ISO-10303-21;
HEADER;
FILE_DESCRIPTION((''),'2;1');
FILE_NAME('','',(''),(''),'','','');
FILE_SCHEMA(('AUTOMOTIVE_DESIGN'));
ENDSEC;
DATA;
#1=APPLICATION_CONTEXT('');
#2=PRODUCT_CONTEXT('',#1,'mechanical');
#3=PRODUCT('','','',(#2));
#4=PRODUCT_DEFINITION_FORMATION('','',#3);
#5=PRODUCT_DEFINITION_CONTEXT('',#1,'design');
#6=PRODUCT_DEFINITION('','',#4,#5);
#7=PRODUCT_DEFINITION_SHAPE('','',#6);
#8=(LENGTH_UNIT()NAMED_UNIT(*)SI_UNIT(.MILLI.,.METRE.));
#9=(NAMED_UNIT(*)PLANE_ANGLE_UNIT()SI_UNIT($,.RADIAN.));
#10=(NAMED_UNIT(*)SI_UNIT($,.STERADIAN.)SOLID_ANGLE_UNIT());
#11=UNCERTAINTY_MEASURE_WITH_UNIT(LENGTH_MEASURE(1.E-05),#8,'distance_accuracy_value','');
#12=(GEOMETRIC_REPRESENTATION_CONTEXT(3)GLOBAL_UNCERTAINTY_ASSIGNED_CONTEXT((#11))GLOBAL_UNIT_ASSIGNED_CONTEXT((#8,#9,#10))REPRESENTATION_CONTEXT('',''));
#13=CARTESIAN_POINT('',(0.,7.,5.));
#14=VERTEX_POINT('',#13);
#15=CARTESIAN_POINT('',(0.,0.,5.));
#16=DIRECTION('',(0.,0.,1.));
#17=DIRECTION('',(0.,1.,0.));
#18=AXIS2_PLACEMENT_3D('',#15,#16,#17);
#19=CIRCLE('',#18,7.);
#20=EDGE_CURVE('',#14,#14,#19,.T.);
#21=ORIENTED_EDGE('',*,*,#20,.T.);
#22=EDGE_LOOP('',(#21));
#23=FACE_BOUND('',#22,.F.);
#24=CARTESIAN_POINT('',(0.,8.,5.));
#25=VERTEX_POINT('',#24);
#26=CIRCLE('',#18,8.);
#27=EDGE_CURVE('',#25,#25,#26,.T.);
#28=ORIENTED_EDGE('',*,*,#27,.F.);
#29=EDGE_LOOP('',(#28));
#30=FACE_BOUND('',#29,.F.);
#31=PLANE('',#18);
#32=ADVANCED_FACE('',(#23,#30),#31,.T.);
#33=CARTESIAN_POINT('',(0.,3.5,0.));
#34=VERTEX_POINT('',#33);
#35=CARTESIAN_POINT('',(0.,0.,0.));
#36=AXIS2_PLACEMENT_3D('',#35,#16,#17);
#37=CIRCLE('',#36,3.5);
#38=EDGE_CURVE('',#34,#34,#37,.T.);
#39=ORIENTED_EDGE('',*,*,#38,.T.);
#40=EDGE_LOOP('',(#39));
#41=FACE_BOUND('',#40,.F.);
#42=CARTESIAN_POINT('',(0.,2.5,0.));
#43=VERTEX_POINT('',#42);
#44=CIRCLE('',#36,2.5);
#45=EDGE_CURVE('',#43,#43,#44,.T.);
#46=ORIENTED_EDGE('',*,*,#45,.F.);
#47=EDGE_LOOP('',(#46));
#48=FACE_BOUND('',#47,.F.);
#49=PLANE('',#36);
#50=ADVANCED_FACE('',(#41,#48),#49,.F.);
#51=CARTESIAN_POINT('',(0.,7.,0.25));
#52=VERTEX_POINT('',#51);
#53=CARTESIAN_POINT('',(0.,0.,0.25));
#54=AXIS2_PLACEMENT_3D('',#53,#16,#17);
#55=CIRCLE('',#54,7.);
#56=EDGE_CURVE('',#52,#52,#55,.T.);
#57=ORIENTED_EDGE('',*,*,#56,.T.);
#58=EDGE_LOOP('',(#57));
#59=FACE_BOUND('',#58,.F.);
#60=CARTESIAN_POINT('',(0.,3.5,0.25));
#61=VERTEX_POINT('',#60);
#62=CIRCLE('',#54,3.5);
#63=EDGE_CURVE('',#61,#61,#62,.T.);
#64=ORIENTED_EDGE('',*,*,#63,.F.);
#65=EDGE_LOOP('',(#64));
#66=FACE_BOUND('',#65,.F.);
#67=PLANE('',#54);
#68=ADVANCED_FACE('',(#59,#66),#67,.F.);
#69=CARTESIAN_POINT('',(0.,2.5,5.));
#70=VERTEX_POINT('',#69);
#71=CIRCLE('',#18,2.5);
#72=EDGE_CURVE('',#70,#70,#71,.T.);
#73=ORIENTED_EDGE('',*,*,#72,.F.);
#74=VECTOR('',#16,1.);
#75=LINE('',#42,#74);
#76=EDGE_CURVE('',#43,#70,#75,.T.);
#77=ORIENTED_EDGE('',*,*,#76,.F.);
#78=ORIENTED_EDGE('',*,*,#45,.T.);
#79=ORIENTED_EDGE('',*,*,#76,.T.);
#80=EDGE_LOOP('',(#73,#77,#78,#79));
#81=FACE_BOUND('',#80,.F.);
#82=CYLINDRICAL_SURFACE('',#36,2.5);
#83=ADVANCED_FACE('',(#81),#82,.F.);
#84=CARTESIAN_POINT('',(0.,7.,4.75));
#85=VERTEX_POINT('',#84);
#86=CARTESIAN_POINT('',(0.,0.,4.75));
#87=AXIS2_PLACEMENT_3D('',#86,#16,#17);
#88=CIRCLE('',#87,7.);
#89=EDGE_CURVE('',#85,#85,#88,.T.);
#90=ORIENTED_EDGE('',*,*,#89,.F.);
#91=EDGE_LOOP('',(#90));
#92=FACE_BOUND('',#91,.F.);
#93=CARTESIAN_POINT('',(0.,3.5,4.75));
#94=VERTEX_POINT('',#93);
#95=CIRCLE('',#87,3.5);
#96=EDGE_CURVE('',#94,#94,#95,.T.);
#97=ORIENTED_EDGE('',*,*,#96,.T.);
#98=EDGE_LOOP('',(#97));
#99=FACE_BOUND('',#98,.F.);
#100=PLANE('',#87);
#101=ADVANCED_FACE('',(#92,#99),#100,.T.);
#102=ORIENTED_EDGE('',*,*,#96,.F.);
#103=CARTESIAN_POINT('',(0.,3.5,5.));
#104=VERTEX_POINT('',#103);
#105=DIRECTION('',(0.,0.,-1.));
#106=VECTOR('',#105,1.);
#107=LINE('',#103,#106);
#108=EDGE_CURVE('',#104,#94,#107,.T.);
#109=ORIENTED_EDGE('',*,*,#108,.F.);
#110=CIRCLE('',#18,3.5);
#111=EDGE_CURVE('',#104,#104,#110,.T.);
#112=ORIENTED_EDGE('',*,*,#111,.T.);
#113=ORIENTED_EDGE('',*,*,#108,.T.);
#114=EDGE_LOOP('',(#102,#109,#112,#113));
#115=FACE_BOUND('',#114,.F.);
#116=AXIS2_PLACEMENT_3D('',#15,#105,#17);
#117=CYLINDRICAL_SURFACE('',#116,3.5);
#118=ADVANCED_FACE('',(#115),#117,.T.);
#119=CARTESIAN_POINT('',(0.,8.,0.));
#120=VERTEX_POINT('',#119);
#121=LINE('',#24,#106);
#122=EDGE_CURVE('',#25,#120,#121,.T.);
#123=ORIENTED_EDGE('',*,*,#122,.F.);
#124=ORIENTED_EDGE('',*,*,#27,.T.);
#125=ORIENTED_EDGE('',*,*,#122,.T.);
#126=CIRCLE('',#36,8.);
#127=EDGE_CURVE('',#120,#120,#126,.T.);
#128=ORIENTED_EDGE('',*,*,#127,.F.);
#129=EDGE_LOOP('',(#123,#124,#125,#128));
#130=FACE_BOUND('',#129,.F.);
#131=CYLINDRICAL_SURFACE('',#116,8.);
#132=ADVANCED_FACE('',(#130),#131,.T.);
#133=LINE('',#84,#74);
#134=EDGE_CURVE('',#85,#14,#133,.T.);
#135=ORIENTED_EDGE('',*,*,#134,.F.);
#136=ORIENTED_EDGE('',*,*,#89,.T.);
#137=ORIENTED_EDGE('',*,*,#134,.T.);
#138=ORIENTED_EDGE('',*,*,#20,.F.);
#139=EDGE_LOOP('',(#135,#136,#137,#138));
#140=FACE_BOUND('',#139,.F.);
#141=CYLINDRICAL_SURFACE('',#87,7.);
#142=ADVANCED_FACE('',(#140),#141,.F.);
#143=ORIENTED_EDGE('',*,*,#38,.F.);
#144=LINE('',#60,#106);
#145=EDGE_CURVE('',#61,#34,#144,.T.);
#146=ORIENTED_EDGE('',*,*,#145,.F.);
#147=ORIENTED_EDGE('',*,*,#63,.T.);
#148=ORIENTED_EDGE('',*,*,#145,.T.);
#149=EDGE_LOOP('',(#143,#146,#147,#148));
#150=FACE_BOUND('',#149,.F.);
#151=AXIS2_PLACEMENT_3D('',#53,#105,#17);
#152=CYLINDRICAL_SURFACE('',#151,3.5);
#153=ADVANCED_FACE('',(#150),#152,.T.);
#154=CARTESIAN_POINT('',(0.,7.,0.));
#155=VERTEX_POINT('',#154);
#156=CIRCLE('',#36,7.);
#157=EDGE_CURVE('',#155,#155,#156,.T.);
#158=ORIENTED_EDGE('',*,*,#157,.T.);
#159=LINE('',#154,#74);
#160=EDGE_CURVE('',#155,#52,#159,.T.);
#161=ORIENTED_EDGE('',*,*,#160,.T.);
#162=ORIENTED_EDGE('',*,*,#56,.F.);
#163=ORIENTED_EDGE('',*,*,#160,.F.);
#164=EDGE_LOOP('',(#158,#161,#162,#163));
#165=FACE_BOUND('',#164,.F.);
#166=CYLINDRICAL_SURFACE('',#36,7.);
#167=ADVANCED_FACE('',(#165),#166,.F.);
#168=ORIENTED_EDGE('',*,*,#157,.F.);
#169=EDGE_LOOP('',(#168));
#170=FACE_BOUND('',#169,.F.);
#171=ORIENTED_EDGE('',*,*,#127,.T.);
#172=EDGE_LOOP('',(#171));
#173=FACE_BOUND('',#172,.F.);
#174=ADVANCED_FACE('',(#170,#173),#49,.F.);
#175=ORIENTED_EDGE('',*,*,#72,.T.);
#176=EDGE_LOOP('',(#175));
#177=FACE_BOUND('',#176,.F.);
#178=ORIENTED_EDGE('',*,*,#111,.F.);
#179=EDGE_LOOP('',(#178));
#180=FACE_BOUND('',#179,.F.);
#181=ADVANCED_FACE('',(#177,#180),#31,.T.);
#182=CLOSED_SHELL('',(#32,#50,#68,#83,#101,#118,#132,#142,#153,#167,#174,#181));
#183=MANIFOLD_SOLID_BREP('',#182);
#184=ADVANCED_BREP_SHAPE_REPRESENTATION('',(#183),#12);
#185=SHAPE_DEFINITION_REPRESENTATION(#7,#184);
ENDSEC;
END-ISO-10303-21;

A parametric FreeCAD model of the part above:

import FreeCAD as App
import Part
import Sketcher

V = App.Vector
Q = App.Units.Quantity

doc = App.newDocument("Part")
body = doc.addObject("PartDesign::Body", "Body")

sketch1 = body.newObject("Sketcher::SketchObject", "Sketch")
sketch1.AttachmentSupport = (doc.getObject("YZ_Plane"), [""])
sketch1.MapMode = "FlatFace"
sketch1.addGeometry([
    Part.LineSegment(V(2.5, 5, 0), V(2.5, 0, 0)),
    Part.LineSegment(V(2.5, 0, 0), V(3.5, 0, 0)),
    Part.LineSegment(V(3.5, 0, 0), V(3.5, 0.25, 0)),
    Part.LineSegment(V(3.5, 0.25, 0), V(7, 0.25, 0)),
    Part.LineSegment(V(7, 0.25, 0), V(7, 0, 0)),
    Part.LineSegment(V(7, 0, 0), V(8, 0, 0)),
    Part.LineSegment(V(8, 0, 0), V(8, 5, 0)),
    Part.LineSegment(V(8, 5, 0), V(7, 5, 0)),
    Part.LineSegment(V(7, 5, 0), V(7, 4.75, 0)),
    Part.LineSegment(V(7, 4.75, 0), V(3.5, 4.75, 0)),
    Part.LineSegment(V(3.5, 4.75, 0), V(3.5, 5, 0)),
    Part.LineSegment(V(3.5, 5, 0), V(2.5, 5, 0)),
], False)
sketch1.addConstraint([
    Sketcher.Constraint("Coincident", 0, 2, 1, 1),
    Sketcher.Constraint("Coincident", 1, 2, 2, 1),
    Sketcher.Constraint("Coincident", 2, 2, 3, 1),
    Sketcher.Constraint("Coincident", 3, 2, 4, 1),
    Sketcher.Constraint("Coincident", 4, 2, 5, 1),
    Sketcher.Constraint("Coincident", 5, 2, 6, 1),
    Sketcher.Constraint("Coincident", 6, 2, 7, 1),
    Sketcher.Constraint("Coincident", 7, 2, 8, 1),
    Sketcher.Constraint("Coincident", 8, 2, 9, 1),
    Sketcher.Constraint("Coincident", 9, 2, 10, 1),
    Sketcher.Constraint("Coincident", 10, 2, 11, 1),
    Sketcher.Constraint("Coincident", 11, 2, 0, 1),
    Sketcher.Constraint("Vertical", 0),
    Sketcher.Constraint("Horizontal", 1),
    Sketcher.Constraint("Vertical", 2),
    Sketcher.Constraint("Horizontal", 3),
    Sketcher.Constraint("Vertical", 4),
    Sketcher.Constraint("Horizontal", 5),
    Sketcher.Constraint("Vertical", 6),
    Sketcher.Constraint("Horizontal", 7),
    Sketcher.Constraint("Vertical", 8),
    Sketcher.Constraint("Horizontal", 9),
    Sketcher.Constraint("Vertical", 10),
    Sketcher.Constraint("Horizontal", 11),
    Sketcher.Constraint("PointOnObject", 0, 2, -1),
    Sketcher.Constraint("PointOnObject", 4, 2, -1),
    Sketcher.Constraint("Horizontal", 7, 2, 10, 2),
    Sketcher.Constraint("Vertical", 4, 2, 7, 2),
    Sketcher.Constraint("Vertical", 2, 2, 9, 2),
    Sketcher.Constraint("Equal", 1, 5),
    Sketcher.Constraint("Equal", 4, 8),
    Sketcher.Constraint("DistanceX", 1, 1, 1, 2, Q("1 mm")),
    Sketcher.Constraint("DistanceY", 0, 2, 0, 1, Q("5 mm")),
    Sketcher.Constraint("DistanceY", 2, 1, 2, 2, Q("0.25 mm")),
    Sketcher.Constraint("DistanceX", 3, 1, 3, 2, Q("3.5 mm")),
    Sketcher.Constraint("DistanceX", -1, 1, 3, 2, Q("7 mm")),
])
revolution = body.newObject("PartDesign::Revolution", "Revolution")
revolution.Profile = sketch1
revolution.ReferenceAxis = (sketch1, ["V_Axis"])
revolution.Angle = 360

doc.recompute()
